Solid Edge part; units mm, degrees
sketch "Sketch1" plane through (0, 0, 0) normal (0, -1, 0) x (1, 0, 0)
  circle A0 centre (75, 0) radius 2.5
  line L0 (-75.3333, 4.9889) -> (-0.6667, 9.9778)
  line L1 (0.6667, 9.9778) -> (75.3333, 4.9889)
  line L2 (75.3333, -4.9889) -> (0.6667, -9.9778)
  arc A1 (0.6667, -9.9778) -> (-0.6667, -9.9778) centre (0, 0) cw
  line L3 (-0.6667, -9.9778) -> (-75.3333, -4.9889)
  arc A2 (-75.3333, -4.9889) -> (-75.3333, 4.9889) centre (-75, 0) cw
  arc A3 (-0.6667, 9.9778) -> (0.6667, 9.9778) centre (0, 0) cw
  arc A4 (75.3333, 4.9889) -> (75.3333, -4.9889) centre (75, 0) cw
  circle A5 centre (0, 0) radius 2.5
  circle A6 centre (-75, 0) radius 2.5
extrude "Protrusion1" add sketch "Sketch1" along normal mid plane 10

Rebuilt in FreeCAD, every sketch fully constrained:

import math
import FreeCAD as App
import Part
import Sketcher

V = App.Vector

doc = App.newDocument("Part")
body = doc.addObject("PartDesign::Body", "Body")

# Sketch on XZ plane
sketch1 = body.newObject("Sketcher::SketchObject", "Sketch")
sketch1.AttachmentSupport = (doc.getObject("XZ_Plane"), [""])
sketch1.MapMode = "FlatFace"
sketch1.addGeometry([
    Part.LineSegment(V(-0.7, 10, 0), V(-75.3, 5, 0)),  # 0
    Part.ArcOfCircle(Part.Circle(V(-75, 0, 0), V(0, 0, 1), 5), math.radians(94), math.radians(266)),  # 1
    Part.LineSegment(V(-75.3, -5, 0), V(-0.7, -10, 0)),  # 2
    Part.ArcOfCircle(Part.Circle(V(0, 0, 0), V(0, 0, 1), 10), math.radians(-93.82), math.radians(-86.18)),  # 3
    Part.LineSegment(V(0.7, -10, 0), V(75.3, -5, 0)),  # 4
    Part.ArcOfCircle(Part.Circle(V(75, 0, 0), V(0, 0, 1), 5), math.radians(-86), math.radians(86)),  # 5
    Part.LineSegment(V(75.3, 5, 0), V(0.7, 10, 0)),  # 6
    Part.ArcOfCircle(Part.Circle(V(0, 0, 0), V(0, 0, 1), 10), math.radians(86.18), math.radians(93.82)),  # 7
    Part.Circle(V(-75, 0, 0), V(0, 0, 1), 2.5),  # 8
    Part.Circle(V(0, 0, 0), V(0, 0, 1), 2.5),  # 9
    Part.Circle(V(75, 0, 0), V(0, 0, 1), 2.5),  # 10
], False)
sketch1.addConstraint([
    Sketcher.Constraint("Tangent", 0, 2, 1, 1),
    Sketcher.Constraint("Tangent", 1, 2, 2, 1),
    Sketcher.Constraint("Tangent", 2, 2, 3, 1),
    Sketcher.Constraint("Tangent", 3, 2, 4, 1),
    Sketcher.Constraint("Tangent", 4, 2, 5, 1),
    Sketcher.Constraint("Tangent", 5, 2, 6, 1),
    Sketcher.Constraint("Tangent", 6, 2, 7, 1),
    Sketcher.Constraint("Tangent", 7, 2, 0, 1),
    Sketcher.Constraint("Coincident", 3, 3, -1, 1),
    Sketcher.Constraint("Coincident", 7, 3, -1, 1),
    Sketcher.Constraint("Coincident", 9, 3, -1, 1),
    Sketcher.Constraint("Coincident", 8, 3, 1, 3),
    Sketcher.Constraint("Coincident", 10, 3, 5, 3),
    Sketcher.Constraint("Equal", 1, 5),
    Sketcher.Constraint("Equal", 3, 7),
    Sketcher.Constraint("Equal", 8, 9),
    Sketcher.Constraint("Equal", 9, 10),
    Sketcher.Constraint("Symmetric", 1, 3, 5, 3, -1, 1),
    Sketcher.Constraint("PointOnObject", 1, 3, -1),
    Sketcher.Constraint("Diameter", 8, 5.0),
    Sketcher.Constraint("Radius", 1, 5.0),
    Sketcher.Constraint("Radius", 3, 10.0),
    Sketcher.Constraint("DistanceX", 1, 3, -1, 1, 75.0),
])
pad1 = body.newObject("PartDesign::Pad", "Pad")
pad1.Profile = sketch1
pad1.Length = 10
pad1.Midplane = True

doc.recompute()
